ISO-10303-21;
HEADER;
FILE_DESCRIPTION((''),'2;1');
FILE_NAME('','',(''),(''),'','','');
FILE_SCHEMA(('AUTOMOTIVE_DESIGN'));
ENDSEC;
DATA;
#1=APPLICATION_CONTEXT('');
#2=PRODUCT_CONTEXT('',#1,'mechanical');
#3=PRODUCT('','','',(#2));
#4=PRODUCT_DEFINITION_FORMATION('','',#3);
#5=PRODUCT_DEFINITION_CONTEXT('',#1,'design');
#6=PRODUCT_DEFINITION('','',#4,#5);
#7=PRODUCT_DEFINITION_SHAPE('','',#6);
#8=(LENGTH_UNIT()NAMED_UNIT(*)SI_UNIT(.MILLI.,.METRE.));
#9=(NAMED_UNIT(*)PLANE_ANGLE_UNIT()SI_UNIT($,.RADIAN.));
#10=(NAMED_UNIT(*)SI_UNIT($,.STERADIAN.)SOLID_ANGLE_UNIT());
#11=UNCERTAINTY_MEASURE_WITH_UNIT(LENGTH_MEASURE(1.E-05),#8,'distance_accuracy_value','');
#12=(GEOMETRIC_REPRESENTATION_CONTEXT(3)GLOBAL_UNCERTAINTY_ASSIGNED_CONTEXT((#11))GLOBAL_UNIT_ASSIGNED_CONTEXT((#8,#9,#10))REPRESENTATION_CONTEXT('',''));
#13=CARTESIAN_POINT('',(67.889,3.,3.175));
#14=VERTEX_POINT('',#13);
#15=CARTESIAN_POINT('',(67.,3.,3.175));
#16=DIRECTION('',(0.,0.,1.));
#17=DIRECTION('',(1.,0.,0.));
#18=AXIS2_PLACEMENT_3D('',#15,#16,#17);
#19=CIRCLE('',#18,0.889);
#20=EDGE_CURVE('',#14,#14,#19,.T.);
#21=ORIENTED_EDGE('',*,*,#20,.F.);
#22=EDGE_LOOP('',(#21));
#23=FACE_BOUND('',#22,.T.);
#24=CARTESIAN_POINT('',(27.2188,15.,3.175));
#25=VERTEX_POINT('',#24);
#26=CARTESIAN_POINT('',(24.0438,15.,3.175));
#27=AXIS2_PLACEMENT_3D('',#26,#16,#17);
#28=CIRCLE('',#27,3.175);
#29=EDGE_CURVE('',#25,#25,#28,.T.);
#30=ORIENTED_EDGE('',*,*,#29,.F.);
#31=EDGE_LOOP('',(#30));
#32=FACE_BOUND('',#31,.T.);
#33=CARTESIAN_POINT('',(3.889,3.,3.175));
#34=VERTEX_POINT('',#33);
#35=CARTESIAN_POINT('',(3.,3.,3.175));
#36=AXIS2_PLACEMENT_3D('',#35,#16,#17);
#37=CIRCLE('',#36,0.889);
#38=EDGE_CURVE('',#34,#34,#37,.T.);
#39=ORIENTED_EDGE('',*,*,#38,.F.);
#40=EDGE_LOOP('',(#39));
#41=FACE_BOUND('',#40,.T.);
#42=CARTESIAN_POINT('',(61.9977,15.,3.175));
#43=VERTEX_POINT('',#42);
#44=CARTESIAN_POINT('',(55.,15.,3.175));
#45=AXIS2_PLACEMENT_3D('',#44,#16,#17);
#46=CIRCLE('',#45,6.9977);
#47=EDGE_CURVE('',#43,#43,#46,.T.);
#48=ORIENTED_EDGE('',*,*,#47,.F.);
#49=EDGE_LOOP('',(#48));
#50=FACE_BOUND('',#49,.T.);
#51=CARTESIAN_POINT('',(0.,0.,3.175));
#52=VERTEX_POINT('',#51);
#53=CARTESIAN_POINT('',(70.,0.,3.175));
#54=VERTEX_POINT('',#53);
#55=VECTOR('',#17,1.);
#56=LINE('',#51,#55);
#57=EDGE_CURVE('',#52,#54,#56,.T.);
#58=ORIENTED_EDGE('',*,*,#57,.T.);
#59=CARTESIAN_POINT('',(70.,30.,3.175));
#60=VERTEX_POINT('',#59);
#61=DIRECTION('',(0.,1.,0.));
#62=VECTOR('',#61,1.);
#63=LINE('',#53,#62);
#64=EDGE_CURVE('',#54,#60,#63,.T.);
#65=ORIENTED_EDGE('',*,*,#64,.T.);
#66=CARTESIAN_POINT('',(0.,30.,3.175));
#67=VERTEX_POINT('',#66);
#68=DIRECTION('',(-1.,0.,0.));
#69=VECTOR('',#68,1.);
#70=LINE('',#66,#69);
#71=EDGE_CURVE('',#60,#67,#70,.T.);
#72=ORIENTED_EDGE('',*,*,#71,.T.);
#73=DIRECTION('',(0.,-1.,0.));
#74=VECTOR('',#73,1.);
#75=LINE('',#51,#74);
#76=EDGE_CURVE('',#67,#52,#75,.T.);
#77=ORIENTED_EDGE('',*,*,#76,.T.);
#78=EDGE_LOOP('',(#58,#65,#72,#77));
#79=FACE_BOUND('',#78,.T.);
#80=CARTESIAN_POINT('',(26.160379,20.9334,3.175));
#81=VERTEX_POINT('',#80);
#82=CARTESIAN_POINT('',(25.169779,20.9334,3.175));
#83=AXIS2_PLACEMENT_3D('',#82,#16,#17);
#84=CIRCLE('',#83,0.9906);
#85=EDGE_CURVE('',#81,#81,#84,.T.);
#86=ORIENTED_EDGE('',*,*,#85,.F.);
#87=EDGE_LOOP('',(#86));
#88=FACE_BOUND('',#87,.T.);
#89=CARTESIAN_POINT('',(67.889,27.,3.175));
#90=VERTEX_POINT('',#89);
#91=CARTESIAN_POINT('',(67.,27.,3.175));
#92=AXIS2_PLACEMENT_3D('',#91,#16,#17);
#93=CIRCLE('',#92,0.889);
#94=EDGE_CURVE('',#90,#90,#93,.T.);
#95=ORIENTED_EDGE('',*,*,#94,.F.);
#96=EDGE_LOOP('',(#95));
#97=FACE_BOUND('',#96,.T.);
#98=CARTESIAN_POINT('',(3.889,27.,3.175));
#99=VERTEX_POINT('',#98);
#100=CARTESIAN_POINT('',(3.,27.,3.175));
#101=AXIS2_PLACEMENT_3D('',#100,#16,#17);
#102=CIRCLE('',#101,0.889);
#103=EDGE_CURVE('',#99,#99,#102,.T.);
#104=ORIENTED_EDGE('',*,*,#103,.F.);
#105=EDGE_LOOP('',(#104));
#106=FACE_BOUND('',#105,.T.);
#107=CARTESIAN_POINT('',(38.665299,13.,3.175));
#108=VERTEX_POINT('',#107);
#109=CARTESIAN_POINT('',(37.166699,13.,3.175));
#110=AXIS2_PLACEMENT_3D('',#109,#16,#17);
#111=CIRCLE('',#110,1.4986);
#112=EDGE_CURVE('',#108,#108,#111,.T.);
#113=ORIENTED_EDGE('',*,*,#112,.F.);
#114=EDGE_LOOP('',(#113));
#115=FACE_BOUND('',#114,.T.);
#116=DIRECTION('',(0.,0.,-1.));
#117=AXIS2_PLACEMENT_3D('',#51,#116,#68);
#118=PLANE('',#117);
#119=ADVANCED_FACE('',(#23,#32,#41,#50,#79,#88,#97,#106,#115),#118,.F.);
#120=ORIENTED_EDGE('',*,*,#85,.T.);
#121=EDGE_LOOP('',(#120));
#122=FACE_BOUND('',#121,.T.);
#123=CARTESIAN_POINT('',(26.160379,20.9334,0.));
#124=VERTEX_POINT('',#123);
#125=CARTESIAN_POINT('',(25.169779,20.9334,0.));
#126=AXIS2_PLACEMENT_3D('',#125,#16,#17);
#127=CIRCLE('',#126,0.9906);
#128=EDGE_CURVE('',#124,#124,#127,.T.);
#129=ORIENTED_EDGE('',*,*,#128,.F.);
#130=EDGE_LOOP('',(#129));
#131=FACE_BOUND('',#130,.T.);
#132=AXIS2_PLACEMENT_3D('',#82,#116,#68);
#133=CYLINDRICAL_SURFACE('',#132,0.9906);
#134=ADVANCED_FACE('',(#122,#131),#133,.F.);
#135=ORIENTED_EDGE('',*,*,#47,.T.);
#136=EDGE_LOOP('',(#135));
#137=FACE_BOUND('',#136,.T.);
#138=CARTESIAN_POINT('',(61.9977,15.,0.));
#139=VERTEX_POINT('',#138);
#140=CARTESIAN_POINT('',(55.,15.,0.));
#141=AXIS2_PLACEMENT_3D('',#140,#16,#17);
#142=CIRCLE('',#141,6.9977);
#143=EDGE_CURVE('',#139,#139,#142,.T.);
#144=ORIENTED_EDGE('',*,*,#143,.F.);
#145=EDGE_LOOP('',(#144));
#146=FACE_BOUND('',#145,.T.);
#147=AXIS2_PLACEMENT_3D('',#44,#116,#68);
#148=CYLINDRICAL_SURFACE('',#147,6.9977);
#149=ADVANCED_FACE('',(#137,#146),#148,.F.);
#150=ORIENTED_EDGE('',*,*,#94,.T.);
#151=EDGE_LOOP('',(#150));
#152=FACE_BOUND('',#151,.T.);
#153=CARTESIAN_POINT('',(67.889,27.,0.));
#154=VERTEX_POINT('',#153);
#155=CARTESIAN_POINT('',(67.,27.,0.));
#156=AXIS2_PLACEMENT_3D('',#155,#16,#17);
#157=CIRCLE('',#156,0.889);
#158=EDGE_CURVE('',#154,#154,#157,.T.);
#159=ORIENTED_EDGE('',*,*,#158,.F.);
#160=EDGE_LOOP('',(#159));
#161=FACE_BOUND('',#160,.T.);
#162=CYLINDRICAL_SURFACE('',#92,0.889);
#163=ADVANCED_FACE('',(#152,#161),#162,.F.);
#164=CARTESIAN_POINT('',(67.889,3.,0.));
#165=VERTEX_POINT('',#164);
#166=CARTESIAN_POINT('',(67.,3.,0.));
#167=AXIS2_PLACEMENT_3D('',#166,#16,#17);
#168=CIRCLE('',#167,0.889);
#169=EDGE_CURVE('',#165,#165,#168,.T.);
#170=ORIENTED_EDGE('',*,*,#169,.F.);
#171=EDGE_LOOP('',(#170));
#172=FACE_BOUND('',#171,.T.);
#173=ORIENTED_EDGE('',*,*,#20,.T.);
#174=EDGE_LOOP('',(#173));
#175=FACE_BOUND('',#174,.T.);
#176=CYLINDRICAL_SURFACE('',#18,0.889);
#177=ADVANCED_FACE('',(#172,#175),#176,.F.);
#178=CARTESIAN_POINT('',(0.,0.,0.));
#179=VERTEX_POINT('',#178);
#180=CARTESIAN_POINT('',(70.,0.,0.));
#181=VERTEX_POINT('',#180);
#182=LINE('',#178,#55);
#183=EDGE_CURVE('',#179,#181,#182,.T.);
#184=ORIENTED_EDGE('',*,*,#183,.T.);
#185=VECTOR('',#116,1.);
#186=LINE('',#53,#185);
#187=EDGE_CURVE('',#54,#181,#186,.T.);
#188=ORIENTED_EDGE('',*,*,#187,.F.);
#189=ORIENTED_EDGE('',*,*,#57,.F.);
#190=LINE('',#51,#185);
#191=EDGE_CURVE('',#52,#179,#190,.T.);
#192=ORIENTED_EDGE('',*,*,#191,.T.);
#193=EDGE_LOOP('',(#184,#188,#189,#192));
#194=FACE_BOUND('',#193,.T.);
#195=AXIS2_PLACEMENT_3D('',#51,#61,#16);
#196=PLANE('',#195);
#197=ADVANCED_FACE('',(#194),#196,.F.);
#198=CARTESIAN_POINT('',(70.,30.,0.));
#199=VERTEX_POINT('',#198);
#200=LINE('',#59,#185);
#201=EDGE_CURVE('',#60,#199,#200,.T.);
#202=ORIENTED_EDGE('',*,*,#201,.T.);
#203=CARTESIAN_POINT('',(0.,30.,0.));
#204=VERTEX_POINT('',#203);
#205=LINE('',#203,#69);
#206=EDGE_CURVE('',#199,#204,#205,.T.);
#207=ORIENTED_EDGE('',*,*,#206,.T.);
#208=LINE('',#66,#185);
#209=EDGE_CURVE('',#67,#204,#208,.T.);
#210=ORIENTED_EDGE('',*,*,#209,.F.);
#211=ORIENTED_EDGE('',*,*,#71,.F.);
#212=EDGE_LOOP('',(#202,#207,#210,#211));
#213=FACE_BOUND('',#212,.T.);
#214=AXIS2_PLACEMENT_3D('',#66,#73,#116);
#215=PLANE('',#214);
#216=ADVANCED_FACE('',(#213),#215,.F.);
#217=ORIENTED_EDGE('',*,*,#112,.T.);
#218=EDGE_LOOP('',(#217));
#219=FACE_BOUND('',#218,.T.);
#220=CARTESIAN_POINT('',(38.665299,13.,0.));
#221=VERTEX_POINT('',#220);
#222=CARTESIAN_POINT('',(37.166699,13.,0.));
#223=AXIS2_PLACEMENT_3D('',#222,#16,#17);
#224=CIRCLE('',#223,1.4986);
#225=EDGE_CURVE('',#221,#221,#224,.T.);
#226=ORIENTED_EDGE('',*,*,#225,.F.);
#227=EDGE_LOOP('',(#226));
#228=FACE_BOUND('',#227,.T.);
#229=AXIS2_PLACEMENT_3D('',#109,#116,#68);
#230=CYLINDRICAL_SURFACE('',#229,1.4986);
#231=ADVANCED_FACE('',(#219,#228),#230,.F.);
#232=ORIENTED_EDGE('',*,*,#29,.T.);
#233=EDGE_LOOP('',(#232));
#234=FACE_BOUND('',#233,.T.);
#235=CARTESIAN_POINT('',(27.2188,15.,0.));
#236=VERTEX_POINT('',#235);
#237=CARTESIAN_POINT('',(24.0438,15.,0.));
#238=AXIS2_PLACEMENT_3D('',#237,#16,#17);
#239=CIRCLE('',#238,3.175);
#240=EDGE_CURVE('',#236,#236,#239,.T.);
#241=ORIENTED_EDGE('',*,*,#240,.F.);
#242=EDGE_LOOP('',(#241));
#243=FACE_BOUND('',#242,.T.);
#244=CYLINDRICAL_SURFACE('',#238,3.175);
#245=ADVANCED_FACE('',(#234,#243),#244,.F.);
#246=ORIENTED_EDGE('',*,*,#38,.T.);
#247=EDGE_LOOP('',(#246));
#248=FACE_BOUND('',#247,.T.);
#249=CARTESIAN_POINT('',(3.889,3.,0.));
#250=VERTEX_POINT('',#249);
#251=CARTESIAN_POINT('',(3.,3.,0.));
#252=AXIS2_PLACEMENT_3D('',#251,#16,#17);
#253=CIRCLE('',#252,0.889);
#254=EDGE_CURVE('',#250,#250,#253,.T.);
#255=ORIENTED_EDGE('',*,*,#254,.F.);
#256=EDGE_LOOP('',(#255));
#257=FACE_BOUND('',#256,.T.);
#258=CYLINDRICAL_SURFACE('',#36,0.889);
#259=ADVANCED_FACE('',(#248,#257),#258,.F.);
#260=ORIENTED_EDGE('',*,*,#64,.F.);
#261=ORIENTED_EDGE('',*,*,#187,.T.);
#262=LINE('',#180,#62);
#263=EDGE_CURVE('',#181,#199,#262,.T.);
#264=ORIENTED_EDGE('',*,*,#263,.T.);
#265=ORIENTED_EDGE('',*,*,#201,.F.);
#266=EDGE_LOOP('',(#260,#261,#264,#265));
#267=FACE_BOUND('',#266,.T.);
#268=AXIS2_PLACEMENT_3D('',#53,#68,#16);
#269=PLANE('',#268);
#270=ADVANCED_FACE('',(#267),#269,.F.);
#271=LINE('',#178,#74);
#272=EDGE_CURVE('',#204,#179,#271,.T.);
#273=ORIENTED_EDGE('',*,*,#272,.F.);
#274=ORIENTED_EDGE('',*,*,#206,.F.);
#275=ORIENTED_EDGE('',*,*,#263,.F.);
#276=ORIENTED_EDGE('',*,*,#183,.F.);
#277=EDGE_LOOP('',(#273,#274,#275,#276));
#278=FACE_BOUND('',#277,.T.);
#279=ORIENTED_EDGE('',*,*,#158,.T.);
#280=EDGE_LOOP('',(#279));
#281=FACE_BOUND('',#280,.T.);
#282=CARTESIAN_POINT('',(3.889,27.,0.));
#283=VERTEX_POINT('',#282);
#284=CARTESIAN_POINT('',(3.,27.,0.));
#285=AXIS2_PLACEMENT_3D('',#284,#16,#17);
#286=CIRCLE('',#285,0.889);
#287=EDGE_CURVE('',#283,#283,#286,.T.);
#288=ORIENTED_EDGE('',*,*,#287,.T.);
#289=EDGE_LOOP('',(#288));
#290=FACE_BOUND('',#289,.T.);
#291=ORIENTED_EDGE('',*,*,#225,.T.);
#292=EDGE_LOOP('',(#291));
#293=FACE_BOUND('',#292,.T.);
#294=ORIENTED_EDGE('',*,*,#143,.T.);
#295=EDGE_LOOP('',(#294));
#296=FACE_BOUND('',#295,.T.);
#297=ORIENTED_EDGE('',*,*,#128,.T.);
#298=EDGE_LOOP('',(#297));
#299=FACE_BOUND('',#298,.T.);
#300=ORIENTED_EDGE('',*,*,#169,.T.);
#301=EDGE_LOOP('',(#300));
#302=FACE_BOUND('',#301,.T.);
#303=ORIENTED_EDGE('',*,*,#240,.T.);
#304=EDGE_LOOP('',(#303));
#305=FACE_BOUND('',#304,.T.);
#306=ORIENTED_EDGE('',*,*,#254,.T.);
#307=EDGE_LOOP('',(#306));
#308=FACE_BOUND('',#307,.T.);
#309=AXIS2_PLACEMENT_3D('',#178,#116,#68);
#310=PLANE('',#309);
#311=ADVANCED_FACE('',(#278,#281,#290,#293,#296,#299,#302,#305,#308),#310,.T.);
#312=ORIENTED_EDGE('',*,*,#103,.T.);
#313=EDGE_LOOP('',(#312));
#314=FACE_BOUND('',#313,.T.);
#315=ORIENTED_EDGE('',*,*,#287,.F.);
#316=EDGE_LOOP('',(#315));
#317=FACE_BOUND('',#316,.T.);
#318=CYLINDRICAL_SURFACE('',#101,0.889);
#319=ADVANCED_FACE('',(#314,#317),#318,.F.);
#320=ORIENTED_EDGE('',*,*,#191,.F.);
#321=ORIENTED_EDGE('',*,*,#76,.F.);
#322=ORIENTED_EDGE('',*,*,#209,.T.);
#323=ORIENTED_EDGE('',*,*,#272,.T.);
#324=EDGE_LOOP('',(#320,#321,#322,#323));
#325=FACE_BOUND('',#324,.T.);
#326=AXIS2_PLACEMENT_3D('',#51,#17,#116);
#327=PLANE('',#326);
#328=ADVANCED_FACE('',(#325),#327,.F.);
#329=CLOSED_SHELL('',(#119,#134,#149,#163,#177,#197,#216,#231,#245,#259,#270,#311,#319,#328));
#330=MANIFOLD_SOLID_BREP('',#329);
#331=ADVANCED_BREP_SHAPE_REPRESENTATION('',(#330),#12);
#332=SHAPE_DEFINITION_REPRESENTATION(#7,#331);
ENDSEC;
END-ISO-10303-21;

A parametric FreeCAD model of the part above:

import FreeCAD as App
import Part
import Sketcher
Q = App.Units.Quantity

doc = App.newDocument("Part")
body = doc.addObject("PartDesign::Body", "Body")

# Sketch on XY plane
sketch1 = body.newObject("Sketcher::SketchObject", "Sketch")
sketch1.AttachmentSupport = (doc.getObject("XY_Plane"), [""])
sketch1.MapMode = "FlatFace"
sketch1.addGeometry([
    Part.LineSegment(App.Vector(0, 30, 0), App.Vector(0, 0, 0)),  # 0
    Part.LineSegment(App.Vector(0, 0, 0), App.Vector(70, 0, 0)),  # 1
    Part.LineSegment(App.Vector(70, 0, 0), App.Vector(70, 30, 0)),  # 2
    Part.LineSegment(App.Vector(70, 30, 0), App.Vector(0, 30, 0)),  # 3
    Part.Circle(App.Vector(37.2, 13, 0), App.Vector(0, 0, 1), 1.5),  # 4
    Part.Circle(App.Vector(25.2, 20.9, 0), App.Vector(0, 0, 1), 1),  # 5
    Part.Circle(App.Vector(55, 15, 0), App.Vector(0, 0, 1), 7),  # 6
], False)
sketch1.addConstraint([
    Sketcher.Constraint("Coincident", 0, 2, 1, 1),
    Sketcher.Constraint("Coincident", 1, 2, 2, 1),
    Sketcher.Constraint("Coincident", 2, 2, 3, 1),
    Sketcher.Constraint("Coincident", 3, 2, 0, 1),
    Sketcher.Constraint("Vertical", 0),
    Sketcher.Constraint("Horizontal", 1),
    Sketcher.Constraint("Vertical", 2),
    Sketcher.Constraint("Horizontal", 3),
    Sketcher.Constraint("Coincident", 0, 2, -1, 1),
    Sketcher.Constraint("Diameter", 4, Q("0.118 in")),
    Sketcher.Constraint("Diameter", 5, Q("0.078 in")),
    Sketcher.Constraint("Diameter", 6, Q("0.551 in")),
    Sketcher.Constraint("DistanceX", 1, 1, 1, 2, 70.0),
    Sketcher.Constraint("DistanceY", 0, 2, 0, 1, 30.0),
    Sketcher.Constraint("DistanceX", -1, 1, 4, 3, 37.166699),
    Sketcher.Constraint("DistanceY", -1, 1, 4, 3, 13.0),
    Sketcher.Constraint("DistanceY", -1, 1, 5, 3, 20.9334),
    Sketcher.Constraint("DistanceX", -1, 1, 6, 3, 55.0),
    Sketcher.Constraint("DistanceY", -1, 1, 6, 3, 15.0),
    Sketcher.Constraint("DistanceX", -1, 1, 5, 3, 25.169779),
])
pad1 = body.newObject("PartDesign::Pad", "Pad")
pad1.Profile = sketch1
pad1.Length = Q("0.125 in")

# Sketch on XY plane
sketch2 = body.newObject("Sketcher::SketchObject", "Sketch001")
sketch2.AttachmentSupport = (doc.getObject("XY_Plane"), [""])
sketch2.MapMode = "FlatFace"
sketch2.AttachmentOffset = App.Placement(App.Vector(0, 0, 0.125 * 25.4), App.Rotation())
sketch2.addGeometry([
    Part.Circle(App.Vector(67, 27, 0), App.Vector(0, 0, 1), 0.9),
    Part.Circle(App.Vector(67, 3, 0), App.Vector(0, 0, 1), 0.9),
    Part.Circle(App.Vector(3, 27, 0), App.Vector(0, 0, 1), 0.9),
    Part.Circle(App.Vector(3, 3, 0), App.Vector(0, 0, 1), 0.9),
], False)
sketch2.addConstraint([
    Sketcher.Constraint("Equal", 0, 1),
    Sketcher.Constraint("Equal", 1, 2),
    Sketcher.Constraint("Equal", 2, 3),
    Sketcher.Constraint("Horizontal", 0, 3, 2, 3),
    Sketcher.Constraint("Horizontal", 1, 3, 3, 3),
    Sketcher.Constraint("Vertical", 0, 3, 1, 3),
    Sketcher.Constraint("Vertical", 2, 3, 3, 3),
    Sketcher.Constraint("Diameter", 0, Q("0.07 in")),
    Sketcher.Constraint("DistanceX", -1, 1, 0, 3, 67.0),
    Sketcher.Constraint("DistanceY", -1, 1, 0, 3, 27.0),
    Sketcher.Constraint("DistanceY", -1, 1, 1, 3, 3.0),
    Sketcher.Constraint("DistanceX", -1, 1, 2, 3, 3.0),
])
doc.recompute()
hole = body.newObject("PartDesign::Hole", "Hole")
hole.Profile = sketch2
hole.ThreadType = "None"
hole.Diameter = Q("0.07 in")
hole.DepthType = "ThroughAll"

# Sketch on XY plane
sketch3 = body.newObject("Sketcher::SketchObject", "Sketch002")
sketch3.AttachmentSupport = (doc.getObject("XY_Plane"), [""])
sketch3.MapMode = "FlatFace"
sketch3.AttachmentOffset = App.Placement(App.Vector(0, 0, 0.125 * 25.4), App.Rotation())
sketch3.addGeometry(Part.Circle(App.Vector(24, 15, 0), App.Vector(0, 0, 1), 3.2), False)
sketch3.addConstraint([
    Sketcher.Constraint("Diameter", 0, Q("0.25 in")),
    Sketcher.Constraint("DistanceX", -1, 1, 0, 3, 24.0438),
    Sketcher.Constraint("DistanceY", -1, 1, 0, 3, 15.0),
])
pocket1 = body.newObject("PartDesign::Pocket", "Pocket")
pocket1.Profile = sketch3
pocket1.Type = "ThroughAll"

doc.recompute()
